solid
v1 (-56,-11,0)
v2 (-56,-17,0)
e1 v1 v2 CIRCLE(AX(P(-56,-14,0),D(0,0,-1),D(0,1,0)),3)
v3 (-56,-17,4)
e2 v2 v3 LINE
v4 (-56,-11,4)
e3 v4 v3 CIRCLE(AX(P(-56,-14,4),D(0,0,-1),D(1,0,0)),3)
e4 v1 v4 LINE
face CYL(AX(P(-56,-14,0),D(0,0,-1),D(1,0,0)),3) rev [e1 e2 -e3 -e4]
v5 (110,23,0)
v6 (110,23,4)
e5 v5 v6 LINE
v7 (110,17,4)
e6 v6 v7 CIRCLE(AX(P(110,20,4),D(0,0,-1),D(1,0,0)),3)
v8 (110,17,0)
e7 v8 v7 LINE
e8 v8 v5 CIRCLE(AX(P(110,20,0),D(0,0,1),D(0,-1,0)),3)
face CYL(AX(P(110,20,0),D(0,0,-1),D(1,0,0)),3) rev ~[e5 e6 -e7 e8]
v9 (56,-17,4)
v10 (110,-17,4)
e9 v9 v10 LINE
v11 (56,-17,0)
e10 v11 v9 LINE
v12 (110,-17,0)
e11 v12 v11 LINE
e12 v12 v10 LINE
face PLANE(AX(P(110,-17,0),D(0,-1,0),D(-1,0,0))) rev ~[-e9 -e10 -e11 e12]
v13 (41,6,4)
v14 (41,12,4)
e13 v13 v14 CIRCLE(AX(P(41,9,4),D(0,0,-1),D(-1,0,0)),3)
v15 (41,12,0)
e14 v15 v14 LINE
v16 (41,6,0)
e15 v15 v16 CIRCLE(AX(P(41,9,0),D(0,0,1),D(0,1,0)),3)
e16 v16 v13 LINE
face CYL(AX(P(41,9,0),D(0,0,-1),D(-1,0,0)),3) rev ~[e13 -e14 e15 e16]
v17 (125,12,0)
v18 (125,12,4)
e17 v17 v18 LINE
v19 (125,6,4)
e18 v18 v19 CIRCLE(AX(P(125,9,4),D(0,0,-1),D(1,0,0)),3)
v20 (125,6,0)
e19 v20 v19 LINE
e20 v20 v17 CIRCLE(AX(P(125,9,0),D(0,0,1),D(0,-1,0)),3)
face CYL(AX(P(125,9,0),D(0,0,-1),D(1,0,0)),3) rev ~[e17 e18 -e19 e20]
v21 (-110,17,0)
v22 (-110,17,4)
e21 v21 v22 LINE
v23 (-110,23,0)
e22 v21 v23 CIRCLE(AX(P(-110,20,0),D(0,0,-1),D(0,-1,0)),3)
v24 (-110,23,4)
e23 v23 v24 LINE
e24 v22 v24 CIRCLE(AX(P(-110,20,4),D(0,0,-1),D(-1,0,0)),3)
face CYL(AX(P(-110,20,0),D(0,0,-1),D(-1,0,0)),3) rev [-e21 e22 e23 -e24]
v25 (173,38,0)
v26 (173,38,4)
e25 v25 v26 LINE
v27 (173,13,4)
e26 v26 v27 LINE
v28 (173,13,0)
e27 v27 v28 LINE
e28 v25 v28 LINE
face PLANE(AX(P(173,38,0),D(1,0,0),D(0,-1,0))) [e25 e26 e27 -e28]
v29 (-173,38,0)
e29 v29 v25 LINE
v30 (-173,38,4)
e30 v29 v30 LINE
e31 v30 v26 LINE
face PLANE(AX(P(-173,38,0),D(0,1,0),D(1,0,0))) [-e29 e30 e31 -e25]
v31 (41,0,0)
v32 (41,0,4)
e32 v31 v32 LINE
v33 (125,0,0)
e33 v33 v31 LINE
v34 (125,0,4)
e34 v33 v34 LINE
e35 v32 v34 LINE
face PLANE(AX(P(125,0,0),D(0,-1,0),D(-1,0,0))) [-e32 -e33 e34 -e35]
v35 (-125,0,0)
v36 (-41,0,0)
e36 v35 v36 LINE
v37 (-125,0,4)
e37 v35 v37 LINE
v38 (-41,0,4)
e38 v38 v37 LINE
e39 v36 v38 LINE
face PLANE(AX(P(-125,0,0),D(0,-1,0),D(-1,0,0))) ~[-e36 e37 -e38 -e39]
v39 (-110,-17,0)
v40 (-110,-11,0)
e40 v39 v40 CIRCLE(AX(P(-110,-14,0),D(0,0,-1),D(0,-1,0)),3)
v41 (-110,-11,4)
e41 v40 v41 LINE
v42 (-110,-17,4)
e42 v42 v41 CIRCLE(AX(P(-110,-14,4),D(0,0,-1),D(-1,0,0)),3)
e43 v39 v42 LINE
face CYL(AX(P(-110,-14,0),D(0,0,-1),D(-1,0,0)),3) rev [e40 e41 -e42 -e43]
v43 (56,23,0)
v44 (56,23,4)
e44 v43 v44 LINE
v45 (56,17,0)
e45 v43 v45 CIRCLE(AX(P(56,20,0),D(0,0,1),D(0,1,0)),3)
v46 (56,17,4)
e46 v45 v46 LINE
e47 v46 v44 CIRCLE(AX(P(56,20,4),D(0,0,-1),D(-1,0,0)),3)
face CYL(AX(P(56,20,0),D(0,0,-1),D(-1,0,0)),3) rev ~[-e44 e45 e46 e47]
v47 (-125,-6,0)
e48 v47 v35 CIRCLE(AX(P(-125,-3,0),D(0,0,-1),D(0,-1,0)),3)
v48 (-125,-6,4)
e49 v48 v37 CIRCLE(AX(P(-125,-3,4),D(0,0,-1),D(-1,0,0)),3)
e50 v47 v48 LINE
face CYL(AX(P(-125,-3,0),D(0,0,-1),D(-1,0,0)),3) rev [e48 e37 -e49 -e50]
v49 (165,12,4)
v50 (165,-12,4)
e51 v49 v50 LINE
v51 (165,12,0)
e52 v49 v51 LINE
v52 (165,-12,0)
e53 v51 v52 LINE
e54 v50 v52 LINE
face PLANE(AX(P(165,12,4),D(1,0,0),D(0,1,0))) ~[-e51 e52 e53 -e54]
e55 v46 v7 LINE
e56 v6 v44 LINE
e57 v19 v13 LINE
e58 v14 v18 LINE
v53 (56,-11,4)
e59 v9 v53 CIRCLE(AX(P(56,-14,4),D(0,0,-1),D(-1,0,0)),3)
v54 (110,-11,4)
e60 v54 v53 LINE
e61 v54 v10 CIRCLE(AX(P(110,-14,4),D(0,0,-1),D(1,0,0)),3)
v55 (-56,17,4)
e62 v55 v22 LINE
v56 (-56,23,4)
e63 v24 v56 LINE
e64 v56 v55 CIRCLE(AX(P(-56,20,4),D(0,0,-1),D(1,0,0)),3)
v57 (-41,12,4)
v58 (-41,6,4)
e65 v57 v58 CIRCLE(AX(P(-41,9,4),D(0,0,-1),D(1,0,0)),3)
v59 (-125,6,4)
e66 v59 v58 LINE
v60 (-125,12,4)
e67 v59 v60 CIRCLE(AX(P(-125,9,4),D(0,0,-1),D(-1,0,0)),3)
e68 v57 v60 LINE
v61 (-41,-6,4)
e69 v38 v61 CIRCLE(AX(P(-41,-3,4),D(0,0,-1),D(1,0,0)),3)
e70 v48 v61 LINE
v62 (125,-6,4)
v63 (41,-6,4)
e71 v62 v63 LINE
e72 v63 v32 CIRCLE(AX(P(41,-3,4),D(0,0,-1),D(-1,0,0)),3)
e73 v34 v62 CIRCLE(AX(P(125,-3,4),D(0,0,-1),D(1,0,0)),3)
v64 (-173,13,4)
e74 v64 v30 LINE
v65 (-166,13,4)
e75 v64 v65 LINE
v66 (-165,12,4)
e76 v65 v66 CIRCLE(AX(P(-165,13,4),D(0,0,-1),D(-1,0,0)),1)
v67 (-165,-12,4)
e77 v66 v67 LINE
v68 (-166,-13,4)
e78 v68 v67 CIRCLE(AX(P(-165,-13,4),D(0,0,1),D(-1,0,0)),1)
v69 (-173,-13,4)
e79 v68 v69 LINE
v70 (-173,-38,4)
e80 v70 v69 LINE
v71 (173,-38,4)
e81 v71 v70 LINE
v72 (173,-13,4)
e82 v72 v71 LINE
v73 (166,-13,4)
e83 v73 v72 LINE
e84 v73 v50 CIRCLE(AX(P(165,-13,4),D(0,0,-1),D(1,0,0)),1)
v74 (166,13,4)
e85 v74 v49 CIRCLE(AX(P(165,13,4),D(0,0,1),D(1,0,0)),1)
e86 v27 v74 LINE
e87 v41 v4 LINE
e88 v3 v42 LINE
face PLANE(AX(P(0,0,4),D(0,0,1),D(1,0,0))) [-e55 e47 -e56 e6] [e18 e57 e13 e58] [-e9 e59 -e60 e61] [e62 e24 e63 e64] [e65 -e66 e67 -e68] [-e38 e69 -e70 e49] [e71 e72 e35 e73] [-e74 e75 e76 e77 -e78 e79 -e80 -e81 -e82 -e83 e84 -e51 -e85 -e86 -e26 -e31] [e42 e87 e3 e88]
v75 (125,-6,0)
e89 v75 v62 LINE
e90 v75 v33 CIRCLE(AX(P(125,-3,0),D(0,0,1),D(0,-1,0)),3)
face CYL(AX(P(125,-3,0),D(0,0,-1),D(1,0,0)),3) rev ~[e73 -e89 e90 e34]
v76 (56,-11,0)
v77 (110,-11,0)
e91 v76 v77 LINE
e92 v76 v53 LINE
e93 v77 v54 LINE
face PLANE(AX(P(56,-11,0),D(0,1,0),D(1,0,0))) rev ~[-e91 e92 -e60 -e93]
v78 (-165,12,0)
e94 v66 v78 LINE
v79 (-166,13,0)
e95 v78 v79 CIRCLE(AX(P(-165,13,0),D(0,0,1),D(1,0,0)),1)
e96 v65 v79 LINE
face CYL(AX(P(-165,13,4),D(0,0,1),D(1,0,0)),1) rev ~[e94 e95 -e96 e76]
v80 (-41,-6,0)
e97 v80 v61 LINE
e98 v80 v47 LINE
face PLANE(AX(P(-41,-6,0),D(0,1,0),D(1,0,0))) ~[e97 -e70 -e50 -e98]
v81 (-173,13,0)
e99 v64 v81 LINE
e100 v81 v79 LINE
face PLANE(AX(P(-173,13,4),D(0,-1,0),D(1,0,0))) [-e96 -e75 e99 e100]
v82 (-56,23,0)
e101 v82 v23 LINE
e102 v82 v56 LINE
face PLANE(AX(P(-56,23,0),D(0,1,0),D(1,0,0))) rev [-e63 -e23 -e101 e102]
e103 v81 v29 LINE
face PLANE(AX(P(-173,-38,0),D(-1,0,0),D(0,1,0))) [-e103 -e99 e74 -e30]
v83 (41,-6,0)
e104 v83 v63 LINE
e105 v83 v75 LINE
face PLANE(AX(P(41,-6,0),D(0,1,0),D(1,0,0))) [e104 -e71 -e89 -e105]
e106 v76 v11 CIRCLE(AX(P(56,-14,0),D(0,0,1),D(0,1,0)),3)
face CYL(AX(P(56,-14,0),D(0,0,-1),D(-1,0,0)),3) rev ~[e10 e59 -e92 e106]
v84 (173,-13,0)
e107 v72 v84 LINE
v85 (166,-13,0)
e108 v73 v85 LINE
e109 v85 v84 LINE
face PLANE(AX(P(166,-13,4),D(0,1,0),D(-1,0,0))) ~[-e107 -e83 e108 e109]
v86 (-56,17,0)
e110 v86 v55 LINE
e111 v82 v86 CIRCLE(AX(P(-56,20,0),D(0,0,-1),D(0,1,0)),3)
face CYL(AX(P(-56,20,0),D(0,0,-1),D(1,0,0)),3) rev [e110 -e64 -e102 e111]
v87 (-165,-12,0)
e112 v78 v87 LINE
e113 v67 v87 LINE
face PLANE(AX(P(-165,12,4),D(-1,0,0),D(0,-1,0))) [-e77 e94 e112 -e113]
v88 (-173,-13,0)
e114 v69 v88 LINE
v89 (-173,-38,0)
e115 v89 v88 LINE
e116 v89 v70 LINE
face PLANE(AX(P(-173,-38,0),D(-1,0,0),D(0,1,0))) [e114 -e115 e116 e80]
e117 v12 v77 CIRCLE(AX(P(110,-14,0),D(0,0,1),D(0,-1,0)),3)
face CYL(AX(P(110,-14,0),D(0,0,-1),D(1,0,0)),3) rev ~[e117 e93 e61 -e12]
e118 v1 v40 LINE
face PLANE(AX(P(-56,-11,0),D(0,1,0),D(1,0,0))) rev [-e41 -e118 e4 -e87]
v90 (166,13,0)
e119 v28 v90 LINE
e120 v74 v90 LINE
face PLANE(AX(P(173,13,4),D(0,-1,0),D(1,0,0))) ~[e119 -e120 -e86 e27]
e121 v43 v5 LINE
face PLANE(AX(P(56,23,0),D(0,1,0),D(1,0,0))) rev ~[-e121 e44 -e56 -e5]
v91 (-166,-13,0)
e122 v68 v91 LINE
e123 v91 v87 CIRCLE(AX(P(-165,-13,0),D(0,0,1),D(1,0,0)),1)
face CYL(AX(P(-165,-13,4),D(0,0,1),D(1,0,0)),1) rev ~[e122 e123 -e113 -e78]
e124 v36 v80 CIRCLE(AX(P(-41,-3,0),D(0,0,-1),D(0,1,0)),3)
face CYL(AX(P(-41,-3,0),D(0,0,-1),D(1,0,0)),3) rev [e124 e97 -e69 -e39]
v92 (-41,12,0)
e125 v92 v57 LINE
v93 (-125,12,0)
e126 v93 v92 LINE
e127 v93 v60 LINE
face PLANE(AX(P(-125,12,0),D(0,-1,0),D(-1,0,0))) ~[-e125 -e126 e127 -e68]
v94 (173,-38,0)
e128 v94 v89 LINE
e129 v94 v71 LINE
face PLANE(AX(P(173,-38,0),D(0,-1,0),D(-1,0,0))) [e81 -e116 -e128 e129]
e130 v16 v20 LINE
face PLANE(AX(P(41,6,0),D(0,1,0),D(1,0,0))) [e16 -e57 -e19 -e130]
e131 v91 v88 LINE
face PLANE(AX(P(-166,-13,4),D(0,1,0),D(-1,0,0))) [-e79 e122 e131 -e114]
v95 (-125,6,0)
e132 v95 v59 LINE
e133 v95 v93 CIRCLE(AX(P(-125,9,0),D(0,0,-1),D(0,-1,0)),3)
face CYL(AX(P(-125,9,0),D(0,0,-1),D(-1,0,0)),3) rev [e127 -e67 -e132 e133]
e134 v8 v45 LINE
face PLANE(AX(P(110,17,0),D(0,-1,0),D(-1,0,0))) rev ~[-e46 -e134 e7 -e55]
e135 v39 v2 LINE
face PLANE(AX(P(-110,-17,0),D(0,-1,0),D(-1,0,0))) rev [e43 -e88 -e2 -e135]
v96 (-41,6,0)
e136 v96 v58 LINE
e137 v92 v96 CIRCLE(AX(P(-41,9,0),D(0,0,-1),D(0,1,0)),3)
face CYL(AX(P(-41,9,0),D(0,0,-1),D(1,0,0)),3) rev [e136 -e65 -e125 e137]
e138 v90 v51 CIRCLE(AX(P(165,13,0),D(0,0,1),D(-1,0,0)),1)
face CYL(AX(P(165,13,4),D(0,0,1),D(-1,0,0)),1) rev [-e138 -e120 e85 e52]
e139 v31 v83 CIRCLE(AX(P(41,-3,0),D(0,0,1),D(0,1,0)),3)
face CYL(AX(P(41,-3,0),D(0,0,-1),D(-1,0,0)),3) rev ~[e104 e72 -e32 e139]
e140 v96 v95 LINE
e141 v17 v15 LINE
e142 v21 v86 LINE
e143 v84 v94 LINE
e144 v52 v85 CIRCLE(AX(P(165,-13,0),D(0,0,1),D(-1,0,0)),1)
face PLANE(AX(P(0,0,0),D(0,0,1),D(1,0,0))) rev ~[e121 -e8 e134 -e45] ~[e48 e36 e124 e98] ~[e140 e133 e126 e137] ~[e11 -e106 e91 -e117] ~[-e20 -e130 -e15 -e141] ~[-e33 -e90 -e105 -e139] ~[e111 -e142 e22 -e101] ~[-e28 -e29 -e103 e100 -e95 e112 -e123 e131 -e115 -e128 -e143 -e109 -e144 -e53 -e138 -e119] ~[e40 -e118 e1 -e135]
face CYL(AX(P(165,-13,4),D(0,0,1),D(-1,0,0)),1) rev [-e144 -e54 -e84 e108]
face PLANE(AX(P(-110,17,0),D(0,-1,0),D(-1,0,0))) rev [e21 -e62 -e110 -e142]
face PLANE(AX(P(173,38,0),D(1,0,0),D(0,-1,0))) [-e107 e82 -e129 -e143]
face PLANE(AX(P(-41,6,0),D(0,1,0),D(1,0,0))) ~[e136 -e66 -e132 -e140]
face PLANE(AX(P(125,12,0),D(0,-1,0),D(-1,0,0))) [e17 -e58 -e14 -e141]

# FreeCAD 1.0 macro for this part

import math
import FreeCAD as App
import Part
import Sketcher
from FreeCAD import Vector
Q = App.Units.Quantity


def add_polygon(sketch, points):
    """Adds a closed chain of lines whose ends are joined by coincident constraints."""
    first, n = sketch.GeometryCount, len(points)
    for a, b in zip(points, points[1:] + points[:1]):
        sketch.addGeometry(Part.LineSegment(App.Vector(*a, 0), App.Vector(*b, 0)), False)
    for i in range(n):
        sketch.addConstraint(Sketcher.Constraint("Coincident", first + i, 2, first + (i + 1) % n, 1))

doc = App.newDocument("Part")
body = doc.addObject("PartDesign::Body", "Body")

sketch1 = body.newObject("Sketcher::SketchObject", "Sketch")
sketch1.AttachmentSupport = (doc.getObject("XY_Plane"), [""])
sketch1.MapMode = "FlatFace"
add_polygon(sketch1, [(173, 38), (-173, 38), (-173, -38), (173, -38)])
sketch1.addConstraint(Sketcher.Constraint("Horizontal", 0))
sketch1.addConstraint(Sketcher.Constraint("Vertical", 1))
sketch1.addConstraint(Sketcher.Constraint("Horizontal", 2))
sketch1.addConstraint(Sketcher.Constraint("Vertical", 3))
sketch1.addConstraint(Sketcher.Constraint("Symmetric", 0, 2, 2, 2, -1, 1))
sketch1.addConstraint(Sketcher.Constraint("DistanceX", 0, 2, 0, 1, Q("346 mm")))
sketch1.addConstraint(Sketcher.Constraint("DistanceY", 1, 2, 1, 1, Q("76 mm")))
pad1 = body.newObject("PartDesign::Pad", "Pad")
pad1.Profile = sketch1
pad1.Length = 4

sketch2 = body.newObject("Sketcher::SketchObject", "Sketch001")
sketch2.AttachmentSupport = (doc.getObject("XY_Plane"), [""])
sketch2.MapMode = "FlatFace"
sketch2.AttachmentOffset = App.Placement(Vector(0, 0, 4), App.Rotation())
sketch2.addGeometry(Part.LineSegment(Vector(-166, 13, 0), Vector(-173, 13, 0)), False)
sketch2.addGeometry(Part.LineSegment(Vector(-173, 13, 0), Vector(-173, -13, 0)), False)
sketch2.addGeometry(Part.LineSegment(Vector(-173, -13, 0), Vector(-166, -13, 0)), False)
sketch2.addGeometry(Part.ArcOfCircle(Part.Circle(Vector(-165, -13, 0), Vector(0, 0, 1), 1), math.radians(180), math.radians(450)), False)
sketch2.addGeometry(Part.LineSegment(Vector(-165, -12, 0), Vector(-165, 12, 0)), False)
sketch2.addGeometry(Part.ArcOfCircle(Part.Circle(Vector(-165, 13, 0), Vector(0, 0, 1), 1), math.radians(-90), math.radians(180)), False)
sketch2.addConstraint(Sketcher.Constraint("Coincident", 0, 2, 1, 1))
sketch2.addConstraint(Sketcher.Constraint("Coincident", 1, 2, 2, 1))
sketch2.addConstraint(Sketcher.Constraint("Coincident", 2, 2, 3, 1))
sketch2.addConstraint(Sketcher.Constraint("Coincident", 3, 2, 4, 1))
sketch2.addConstraint(Sketcher.Constraint("Coincident", 4, 2, 5, 1))
sketch2.addConstraint(Sketcher.Constraint("Coincident", 5, 2, 0, 1))
sketch2.addConstraint(Sketcher.Constraint("Horizontal", 0))
sketch2.addConstraint(Sketcher.Constraint("Vertical", 1))
sketch2.addConstraint(Sketcher.Constraint("Horizontal", 2))
sketch2.addConstraint(Sketcher.Constraint("Vertical", 4))
sketch2.addConstraint(Sketcher.Constraint("Equal", 3, 5))
sketch2.addConstraint(Sketcher.Constraint("Symmetric", 3, 3, 5, 3, -1))
sketch2.addConstraint(Sketcher.Constraint("Horizontal", 5, 3, 0, 2))
sketch2.addConstraint(Sketcher.Constraint("Horizontal", 3, 3, 1, 2))
sketch2.addConstraint(Sketcher.Constraint("Vertical", 5, 3, 3, 2))
sketch2.addConstraint(Sketcher.Constraint("Radius", 3, Q("1 mm")))
sketch2.addConstraint(Sketcher.Constraint("DistanceY", 1, 2, 1, 1, Q("26 mm")))
sketch2.addConstraint(Sketcher.Constraint("DistanceX", 0, 2, 5, 3, Q("8 mm")))
sketch2.addConstraint(Sketcher.Constraint("DistanceX", 3, 3, -1, 1, Q("165 mm")))
pocket1 = body.newObject("PartDesign::Pocket", "Pocket")
pocket1.Profile = sketch2
pocket1.Length = 10
doc.recompute()

mirrored = body.newObject("PartDesign::Mirrored", "Mirrored")
mirrored.Originals = [pocket1]
mirrored.MirrorPlane = (doc.getObject("YZ_Plane"), [""])
body.Tip = mirrored

sketch3 = body.newObject("Sketcher::SketchObject", "Sketch002")
sketch3.AttachmentSupport = (doc.getObject("XY_Plane"), [""])
sketch3.MapMode = "FlatFace"
sketch3.addGeometry(Part.ArcOfCircle(Part.Circle(Vector(110, -14, 0), Vector(0, 0, 1), 3), math.radians(-90), math.radians(90)), False)
sketch3.addGeometry(Part.LineSegment(Vector(110, -17, 0), Vector(56, -17, 0)), False)
sketch3.addGeometry(Part.ArcOfCircle(Part.Circle(Vector(56, -14, 0), Vector(0, 0, 1), 3), math.radians(90), math.radians(270)), False)
sketch3.addGeometry(Part.LineSegment(Vector(56, -11, 0), Vector(110, -11, 0)), False)
sketch3.addGeometry(Part.ArcOfCircle(Part.Circle(Vector(56, 20, 0), Vector(0, 0, 1), 3), math.radians(90), math.radians(270)), False)
sketch3.addGeometry(Part.LineSegment(Vector(56, 23, 0), Vector(110, 23, 0)), False)
sketch3.addGeometry(Part.ArcOfCircle(Part.Circle(Vector(110, 20, 0), Vector(0, 0, 1), 3), math.radians(-90), math.radians(90)), False)
sketch3.addGeometry(Part.LineSegment(Vector(110, 17, 0), Vector(56, 17, 0)), False)
sketch3.addGeometry(Part.LineSegment(Vector(41, 12, 0), Vector(125, 12, 0)), False)
sketch3.addGeometry(Part.ArcOfCircle(Part.Circle(Vector(125, 9, 0), Vector(0, 0, 1), 3), math.radians(-90), math.radians(90)), False)
sketch3.addGeometry(Part.LineSegment(Vector(125, 6, 0), Vector(41, 6, 0)), False)
sketch3.addGeometry(Part.ArcOfCircle(Part.Circle(Vector(41, 9, 0), Vector(0, 0, 1), 3), math.radians(90), math.radians(270)), False)
sketch3.addGeometry(Part.LineSegment(Vector(41, 0, 0), Vector(125, 0, 0)), False)
sketch3.addGeometry(Part.ArcOfCircle(Part.Circle(Vector(125, -3, 0), Vector(0, 0, 1), 3), math.radians(-90), math.radians(90)), False)
sketch3.addGeometry(Part.LineSegment(Vector(125, -6, 0), Vector(41, -6, 0)), False)
sketch3.addGeometry(Part.ArcOfCircle(Part.Circle(Vector(41, -3, 0), Vector(0, 0, 1), 3), math.radians(90), math.radians(270)), False)
sketch3.addConstraint(Sketcher.Constraint("Tangent", 0, 1, 1, 1))
sketch3.addConstraint(Sketcher.Constraint("Tangent", 1, 2, 2, 2))
sketch3.addConstraint(Sketcher.Constraint("Tangent", 2, 1, 3, 1))
sketch3.addConstraint(Sketcher.Constraint("Tangent", 3, 2, 0, 2))
sketch3.addConstraint(Sketcher.Constraint("Tangent", 4, 1, 5, 1))
sketch3.addConstraint(Sketcher.Constraint("Tangent", 5, 2, 6, 2))
sketch3.addConstraint(Sketcher.Constraint("Tangent", 6, 1, 7, 1))
sketch3.addConstraint(Sketcher.Constraint("Tangent", 7, 2, 4, 2))
sketch3.addConstraint(Sketcher.Constraint("Tangent", 8, 2, 9, 2))
sketch3.addConstraint(Sketcher.Constraint("Tangent", 9, 1, 10, 1))
sketch3.addConstraint(Sketcher.Constraint("Tangent", 10, 2, 11, 2))
sketch3.addConstraint(Sketcher.Constraint("Tangent", 11, 1, 8, 1))
sketch3.addConstraint(Sketcher.Constraint("Tangent", 12, 2, 13, 2))
sketch3.addConstraint(Sketcher.Constraint("Tangent", 13, 1, 14, 1))
sketch3.addConstraint(Sketcher.Constraint("Tangent", 14, 2, 15, 2))
sketch3.addConstraint(Sketcher.Constraint("Tangent", 15, 1, 12, 1))
sketch3.addConstraint(Sketcher.Constraint("Horizontal", 1))
sketch3.addConstraint(Sketcher.Constraint("Horizontal", 3))
sketch3.addConstraint(Sketcher.Constraint("Horizontal", 5))
sketch3.addConstraint(Sketcher.Constraint("Horizontal", 7))
sketch3.addConstraint(Sketcher.Constraint("Horizontal", 8))
sketch3.addConstraint(Sketcher.Constraint("Horizontal", 10))
sketch3.addConstraint(Sketcher.Constraint("Horizontal", 12))
sketch3.addConstraint(Sketcher.Constraint("Horizontal", 14))
sketch3.addConstraint(Sketcher.Constraint("Equal", 2, 4))
sketch3.addConstraint(Sketcher.Constraint("Equal", 6, 9))
sketch3.addConstraint(Sketcher.Constraint("Equal", 11, 13))
sketch3.addConstraint(Sketcher.Constraint("Symmetric", 0, 1, 6, 1, -1))
sketch3.addConstraint(Sketcher.Constraint("Symmetric", 9, 1, 13, 1, -1))
sketch3.addConstraint(Sketcher.Constraint("PointOnObject", 12, 2, -1))
sketch3.addConstraint(Sketcher.Constraint("Vertical", 2, 3, 4, 3))
sketch3.addConstraint(Sketcher.Constraint("Vertical", 11, 3, 15, 3))
sketch3.addConstraint(Sketcher.Constraint("Radius", 0, Q("3 mm")))
sketch3.addConstraint(Sketcher.Constraint("DistanceX", 6, 3, 9, 3, Q("15 mm")))
sketch3.addConstraint(Sketcher.Constraint("DistanceX", 11, 3, 4, 3, Q("15 mm")))
sketch3.addConstraint(Sketcher.Constraint("DistanceY", 0, 1, 6, 3, Q("37 mm")))
sketch3.addConstraint(Sketcher.Constraint("DistanceX", 1, 2, 1, 1, Q("54 mm")))
sketch3.addConstraint(Sketcher.Constraint("DistanceX", -1, 1, 0, 3, Q("110 mm")))
pocket2 = body.newObject("PartDesign::Pocket", "Pocket001")
pocket2.Profile = sketch3
pocket2.Length = 10
pocket2.Reversed = True
doc.recompute()

mirrored2 = body.newObject("PartDesign::Mirrored", "Mirrored001")
mirrored2.Originals = [pocket2]
mirrored2.MirrorPlane = (doc.getObject("YZ_Plane"), [""])
body.Tip = mirrored2

doc.recompute()
